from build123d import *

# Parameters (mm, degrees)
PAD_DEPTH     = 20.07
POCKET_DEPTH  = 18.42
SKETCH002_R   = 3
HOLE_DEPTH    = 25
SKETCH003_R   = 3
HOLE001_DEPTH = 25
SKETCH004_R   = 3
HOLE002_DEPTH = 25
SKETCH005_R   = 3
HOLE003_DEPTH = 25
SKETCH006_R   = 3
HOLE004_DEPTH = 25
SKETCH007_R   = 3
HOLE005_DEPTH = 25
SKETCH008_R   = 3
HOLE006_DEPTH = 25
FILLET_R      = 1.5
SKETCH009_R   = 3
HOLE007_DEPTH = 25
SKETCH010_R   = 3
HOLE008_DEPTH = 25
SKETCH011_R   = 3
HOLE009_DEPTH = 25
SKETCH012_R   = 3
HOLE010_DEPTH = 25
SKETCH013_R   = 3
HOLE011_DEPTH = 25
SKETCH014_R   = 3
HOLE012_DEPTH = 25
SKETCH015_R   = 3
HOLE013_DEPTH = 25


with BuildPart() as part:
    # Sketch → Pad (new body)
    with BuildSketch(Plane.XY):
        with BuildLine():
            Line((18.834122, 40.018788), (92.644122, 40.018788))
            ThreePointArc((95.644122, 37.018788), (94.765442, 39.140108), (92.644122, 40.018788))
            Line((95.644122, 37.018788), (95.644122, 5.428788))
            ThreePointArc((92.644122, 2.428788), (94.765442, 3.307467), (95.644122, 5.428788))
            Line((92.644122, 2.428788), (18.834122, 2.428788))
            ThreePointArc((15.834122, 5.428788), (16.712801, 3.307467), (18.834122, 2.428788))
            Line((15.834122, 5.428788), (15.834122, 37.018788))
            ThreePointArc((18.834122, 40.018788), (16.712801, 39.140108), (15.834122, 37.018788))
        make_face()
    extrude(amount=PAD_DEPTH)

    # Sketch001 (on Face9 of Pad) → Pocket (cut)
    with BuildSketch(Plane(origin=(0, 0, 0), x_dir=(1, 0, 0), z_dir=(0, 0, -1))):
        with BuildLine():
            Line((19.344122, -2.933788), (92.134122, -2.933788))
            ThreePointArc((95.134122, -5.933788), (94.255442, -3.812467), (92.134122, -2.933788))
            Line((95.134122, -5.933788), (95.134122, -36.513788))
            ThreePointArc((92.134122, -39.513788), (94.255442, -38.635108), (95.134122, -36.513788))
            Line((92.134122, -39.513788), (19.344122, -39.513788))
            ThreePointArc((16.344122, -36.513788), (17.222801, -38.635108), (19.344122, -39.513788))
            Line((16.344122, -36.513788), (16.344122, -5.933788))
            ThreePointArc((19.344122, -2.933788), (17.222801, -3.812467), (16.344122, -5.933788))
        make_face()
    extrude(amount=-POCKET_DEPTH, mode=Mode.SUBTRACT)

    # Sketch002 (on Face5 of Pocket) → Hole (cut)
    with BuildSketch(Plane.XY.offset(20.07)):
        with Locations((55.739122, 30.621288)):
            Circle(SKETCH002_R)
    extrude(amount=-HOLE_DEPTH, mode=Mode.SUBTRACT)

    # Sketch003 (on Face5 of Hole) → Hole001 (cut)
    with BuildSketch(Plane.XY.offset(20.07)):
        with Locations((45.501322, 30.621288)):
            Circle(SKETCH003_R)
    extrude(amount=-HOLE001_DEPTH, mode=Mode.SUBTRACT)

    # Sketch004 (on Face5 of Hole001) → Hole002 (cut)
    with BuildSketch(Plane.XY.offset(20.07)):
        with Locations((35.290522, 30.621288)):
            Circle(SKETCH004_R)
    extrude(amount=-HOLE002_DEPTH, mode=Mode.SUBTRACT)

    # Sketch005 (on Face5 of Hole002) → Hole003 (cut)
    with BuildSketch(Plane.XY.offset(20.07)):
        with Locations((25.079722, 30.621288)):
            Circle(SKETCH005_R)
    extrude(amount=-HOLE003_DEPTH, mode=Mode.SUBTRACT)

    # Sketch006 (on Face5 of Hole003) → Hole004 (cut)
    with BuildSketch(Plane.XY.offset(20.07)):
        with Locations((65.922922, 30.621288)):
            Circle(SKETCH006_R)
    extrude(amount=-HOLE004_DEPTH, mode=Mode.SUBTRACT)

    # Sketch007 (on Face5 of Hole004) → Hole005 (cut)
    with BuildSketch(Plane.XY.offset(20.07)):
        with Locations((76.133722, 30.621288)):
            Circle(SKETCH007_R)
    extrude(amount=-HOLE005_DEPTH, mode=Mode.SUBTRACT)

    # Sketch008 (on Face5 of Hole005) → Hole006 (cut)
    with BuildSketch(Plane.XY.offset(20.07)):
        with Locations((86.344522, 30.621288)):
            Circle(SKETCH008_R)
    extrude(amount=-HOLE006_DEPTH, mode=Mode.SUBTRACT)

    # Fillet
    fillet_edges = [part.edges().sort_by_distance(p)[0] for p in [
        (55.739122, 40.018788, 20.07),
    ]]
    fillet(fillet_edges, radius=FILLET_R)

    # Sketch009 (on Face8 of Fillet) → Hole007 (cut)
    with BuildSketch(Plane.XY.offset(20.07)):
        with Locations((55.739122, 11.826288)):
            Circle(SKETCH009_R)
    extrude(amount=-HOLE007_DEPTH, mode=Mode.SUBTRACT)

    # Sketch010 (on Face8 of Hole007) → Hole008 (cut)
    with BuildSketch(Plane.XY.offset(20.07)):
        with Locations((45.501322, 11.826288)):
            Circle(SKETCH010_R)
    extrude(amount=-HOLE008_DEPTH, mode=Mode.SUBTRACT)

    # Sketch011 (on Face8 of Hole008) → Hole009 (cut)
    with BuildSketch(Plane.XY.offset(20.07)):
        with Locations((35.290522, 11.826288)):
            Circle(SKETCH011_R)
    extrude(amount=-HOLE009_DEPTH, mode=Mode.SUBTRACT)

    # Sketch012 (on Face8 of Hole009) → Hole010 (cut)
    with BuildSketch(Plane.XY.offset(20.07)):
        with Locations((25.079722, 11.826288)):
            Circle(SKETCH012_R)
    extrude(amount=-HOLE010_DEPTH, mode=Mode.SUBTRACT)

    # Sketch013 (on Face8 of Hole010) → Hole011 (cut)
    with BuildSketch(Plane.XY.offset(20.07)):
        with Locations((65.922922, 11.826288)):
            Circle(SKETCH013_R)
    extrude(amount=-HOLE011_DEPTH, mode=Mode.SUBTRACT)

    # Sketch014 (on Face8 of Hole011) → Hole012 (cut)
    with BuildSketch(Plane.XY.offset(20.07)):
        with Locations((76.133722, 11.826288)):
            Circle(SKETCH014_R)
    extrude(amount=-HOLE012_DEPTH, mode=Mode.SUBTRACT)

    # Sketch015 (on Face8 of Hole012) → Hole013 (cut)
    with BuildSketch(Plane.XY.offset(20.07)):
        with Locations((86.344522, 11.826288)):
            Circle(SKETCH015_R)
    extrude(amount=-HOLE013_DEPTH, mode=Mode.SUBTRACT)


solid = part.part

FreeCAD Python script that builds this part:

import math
import FreeCAD as App
import Part
import Sketcher

V = App.Vector


def edges_at(feature, points):
    """Names of the edges that pass closest to the given points."""
    edges = feature.Shape.Edges
    near = lambda p: min(range(len(edges)), key=lambda i: edges[i].distToShape(Part.Vertex(*p))[0])
    return sorted({f"Edge{near(p) + 1}" for p in points})

doc = App.newDocument("Part")
body = doc.addObject("PartDesign::Body", "Body")

sketch1 = body.newObject("Sketcher::SketchObject", "Sketch")
sketch1.AttachmentSupport = (doc.getObject("XY_Plane"), [""])
sketch1.MapMode = "FlatFace"
sketch1.addGeometry([
    Part.LineSegment(V(92.6, 40, 0), V(18.8, 40, 0)),
    Part.ArcOfCircle(Part.Circle(V(18.8, 37, 0), V(0, 0, 1), 3), math.radians(90), math.radians(180)),
    Part.LineSegment(V(15.8, 37, 0), V(15.8, 5.4, 0)),
    Part.ArcOfCircle(Part.Circle(V(18.8, 5.4, 0), V(0, 0, 1), 3), math.radians(180), math.radians(270)),
    Part.LineSegment(V(18.8, 2.4, 0), V(92.6, 2.4, 0)),
    Part.ArcOfCircle(Part.Circle(V(92.6, 5.4, 0), V(0, 0, 1), 3), math.radians(-90), math.radians(0)),
    Part.LineSegment(V(95.6, 5.4, 0), V(95.6, 37, 0)),
    Part.ArcOfCircle(Part.Circle(V(92.6, 37, 0), V(0, 0, 1), 3), math.radians(0), math.radians(90)),
], False)
sketch1.addConstraint([
    Sketcher.Constraint("Tangent", 0, 2, 1, 1),
    Sketcher.Constraint("Tangent", 1, 2, 2, 1),
    Sketcher.Constraint("Tangent", 2, 2, 3, 1),
    Sketcher.Constraint("Tangent", 3, 2, 4, 1),
    Sketcher.Constraint("Tangent", 4, 2, 5, 1),
    Sketcher.Constraint("Tangent", 5, 2, 6, 1),
    Sketcher.Constraint("Tangent", 6, 2, 7, 1),
    Sketcher.Constraint("Tangent", 7, 2, 0, 1),
    Sketcher.Constraint("Horizontal", 0),
    Sketcher.Constraint("Vertical", 2),
    Sketcher.Constraint("Horizontal", 4),
    Sketcher.Constraint("Vertical", 6),
    Sketcher.Constraint("Equal", 1, 3),
    Sketcher.Constraint("Equal", 3, 5),
    Sketcher.Constraint("Equal", 5, 7),
    Sketcher.Constraint("Radius", 1, 2.999999),
    Sketcher.Constraint("DistanceX", 0, 2, 0, 1, 73.81),
    Sketcher.Constraint("DistanceY", 2, 2, 2, 1, 31.59),
    Sketcher.Constraint("DistanceX", -1, 1, 1, 3, 18.834121),
    Sketcher.Constraint("DistanceY", -1, 1, 1, 3, 37.018789),
])
pad1 = body.newObject("PartDesign::Pad", "Pad")
pad1.Profile = sketch1
pad1.Length = 20.07

sketch2 = body.newObject("Sketcher::SketchObject", "Sketch001")
sketch2.AttachmentSupport = (doc.getObject("XY_Plane"), [""])
sketch2.MapMode = "FlatFace"
sketch2.addGeometry([
    Part.LineSegment(V(92.1, 2.9, 0), V(19.3, 2.9, 0)),
    Part.ArcOfCircle(Part.Circle(V(19.3, 5.9, 0), V(0, 0, 1), 3), math.radians(180), math.radians(270)),
    Part.LineSegment(V(16.3, 5.9, 0), V(16.3, 36.5, 0)),
    Part.ArcOfCircle(Part.Circle(V(19.3, 36.5, 0), V(0, 0, 1), 3), math.radians(90), math.radians(180)),
    Part.LineSegment(V(19.3, 39.5, 0), V(92.1, 39.5, 0)),
    Part.ArcOfCircle(Part.Circle(V(92.1, 36.5, 0), V(0, 0, 1), 3), math.radians(0), math.radians(90)),
    Part.LineSegment(V(95.1, 36.5, 0), V(95.1, 5.9, 0)),
    Part.ArcOfCircle(Part.Circle(V(92.1, 5.9, 0), V(0, 0, 1), 3), math.radians(-90), math.radians(0)),
], False)
sketch2.addConstraint([
    Sketcher.Constraint("Tangent", 0, 2, 1, 2),
    Sketcher.Constraint("Tangent", 1, 1, 2, 1),
    Sketcher.Constraint("Tangent", 2, 2, 3, 2),
    Sketcher.Constraint("Tangent", 3, 1, 4, 1),
    Sketcher.Constraint("Tangent", 4, 2, 5, 2),
    Sketcher.Constraint("Tangent", 5, 1, 6, 1),
    Sketcher.Constraint("Tangent", 6, 2, 7, 2),
    Sketcher.Constraint("Tangent", 7, 1, 0, 1),
    Sketcher.Constraint("Horizontal", 0),
    Sketcher.Constraint("Vertical", 2),
    Sketcher.Constraint("Horizontal", 4),
    Sketcher.Constraint("Vertical", 6),
    Sketcher.Constraint("Equal", 1, 3),
    Sketcher.Constraint("Equal", 3, 5),
    Sketcher.Constraint("Equal", 5, 7),
    Sketcher.Constraint("Radius", 3, 2.999999),
    Sketcher.Constraint("DistanceX", 0, 2, 0, 1, 72.79),
    Sketcher.Constraint("DistanceY", 2, 1, 2, 2, 30.58),
    Sketcher.Constraint("DistanceX", -1, 1, 1, 3, 19.34412),
    Sketcher.Constraint("DistanceY", -1, 1, 3, 3, 36.513789),
])
pocket1 = body.newObject("PartDesign::Pocket", "Pocket")
pocket1.Profile = sketch2
pocket1.Length = 18.42
pocket1.Reversed = True

sketch3 = body.newObject("Sketcher::SketchObject", "Sketch002")
sketch3.AttachmentSupport = (doc.getObject("XY_Plane"), [""])
sketch3.MapMode = "FlatFace"
sketch3.AttachmentOffset = App.Placement(V(0, 0, 20.07), App.Rotation())
sketch3.addGeometry(Part.Circle(V(55.7, 30.6, 0), V(0, 0, 1), 3), False)
sketch3.addConstraint([
    Sketcher.Constraint("Diameter", 0, 6.0),
    Sketcher.Constraint("DistanceY", -1, 1, 0, 3, 30.621288),
    Sketcher.Constraint("DistanceX", -1, 1, 0, 3, 55.739122),
])
pocket2 = body.newObject("PartDesign::Pocket", "Pocket001")
pocket2.Profile = sketch3
pocket2.Length = 25

sketch4 = body.newObject("Sketcher::SketchObject", "Sketch003")
sketch4.AttachmentSupport = (doc.getObject("XY_Plane"), [""])
sketch4.MapMode = "FlatFace"
sketch4.AttachmentOffset = App.Placement(V(0, 0, 20.07), App.Rotation())
sketch4.addGeometry(Part.Circle(V(45.5, 30.6, 0), V(0, 0, 1), 3), False)
sketch4.addConstraint([
    Sketcher.Constraint("Diameter", 0, 6.0),
    Sketcher.Constraint("DistanceY", -1, 1, 0, 3, 30.621288),
    Sketcher.Constraint("DistanceX", -1, 1, 0, 3, 45.501322),
])
pocket3 = body.newObject("PartDesign::Pocket", "Pocket002")
pocket3.Profile = sketch4
pocket3.Length = 25

sketch5 = body.newObject("Sketcher::SketchObject", "Sketch004")
sketch5.AttachmentSupport = (doc.getObject("XY_Plane"), [""])
sketch5.MapMode = "FlatFace"
sketch5.AttachmentOffset = App.Placement(V(0, 0, 20.07), App.Rotation())
sketch5.addGeometry(Part.Circle(V(35.3, 30.6, 0), V(0, 0, 1), 3), False)
sketch5.addConstraint([
    Sketcher.Constraint("Diameter", 0, 6.0),
    Sketcher.Constraint("DistanceY", -1, 1, 0, 3, 30.621288),
    Sketcher.Constraint("DistanceX", -1, 1, 0, 3, 35.290522),
])
pocket4 = body.newObject("PartDesign::Pocket", "Pocket003")
pocket4.Profile = sketch5
pocket4.Length = 25

sketch6 = body.newObject("Sketcher::SketchObject", "Sketch005")
sketch6.AttachmentSupport = (doc.getObject("XY_Plane"), [""])
sketch6.MapMode = "FlatFace"
sketch6.AttachmentOffset = App.Placement(V(0, 0, 20.07), App.Rotation())
sketch6.addGeometry(Part.Circle(V(25.1, 30.6, 0), V(0, 0, 1), 3), False)
sketch6.addConstraint([
    Sketcher.Constraint("Diameter", 0, 6.0),
    Sketcher.Constraint("DistanceY", -1, 1, 0, 3, 30.621288),
    Sketcher.Constraint("DistanceX", -1, 1, 0, 3, 25.079722),
])
pocket5 = body.newObject("PartDesign::Pocket", "Pocket004")
pocket5.Profile = sketch6
pocket5.Length = 25

sketch7 = body.newObject("Sketcher::SketchObject", "Sketch006")
sketch7.AttachmentSupport = (doc.getObject("XY_Plane"), [""])
sketch7.MapMode = "FlatFace"
sketch7.AttachmentOffset = App.Placement(V(0, 0, 20.07), App.Rotation())
sketch7.addGeometry(Part.Circle(V(65.9, 30.6, 0), V(0, 0, 1), 3), False)
sketch7.addConstraint([
    Sketcher.Constraint("Diameter", 0, 6.0),
    Sketcher.Constraint("DistanceX", -1, 1, 0, 3, 65.922922),
    Sketcher.Constraint("DistanceY", -1, 1, 0, 3, 30.621288),
])
pocket6 = body.newObject("PartDesign::Pocket", "Pocket005")
pocket6.Profile = sketch7
pocket6.Length = 25

sketch8 = body.newObject("Sketcher::SketchObject", "Sketch007")
sketch8.AttachmentSupport = (doc.getObject("XY_Plane"), [""])
sketch8.MapMode = "FlatFace"
sketch8.AttachmentOffset = App.Placement(V(0, 0, 20.07), App.Rotation())
sketch8.addGeometry(Part.Circle(V(76.1, 30.6, 0), V(0, 0, 1), 3), False)
sketch8.addConstraint([
    Sketcher.Constraint("Diameter", 0, 6.0),
    Sketcher.Constraint("DistanceY", -1, 1, 0, 3, 30.621288),
    Sketcher.Constraint("DistanceX", -1, 1, 0, 3, 76.133722),
])
pocket7 = body.newObject("PartDesign::Pocket", "Pocket006")
pocket7.Profile = sketch8
pocket7.Length = 25

sketch9 = body.newObject("Sketcher::SketchObject", "Sketch008")
sketch9.AttachmentSupport = (doc.getObject("XY_Plane"), [""])
sketch9.MapMode = "FlatFace"
sketch9.AttachmentOffset = App.Placement(V(0, 0, 20.07), App.Rotation())
sketch9.addGeometry(Part.Circle(V(86.3, 30.6, 0), V(0, 0, 1), 3), False)
sketch9.addConstraint([
    Sketcher.Constraint("Diameter", 0, 6.0),
    Sketcher.Constraint("DistanceX", -1, 1, 0, 3, 86.344522),
    Sketcher.Constraint("DistanceY", -1, 1, 0, 3, 30.621288),
])
pocket8 = body.newObject("PartDesign::Pocket", "Pocket007")
pocket8.Profile = sketch9
pocket8.Length = 25
doc.recompute()

fillet = body.newObject("PartDesign::Fillet", "Fillet")
fillet.Base = (pocket8, edges_at(pocket8, [(55.739, 40.019, 20.07)]))
fillet.Radius = 1.5

sketch10 = body.newObject("Sketcher::SketchObject", "Sketch009")
sketch10.AttachmentSupport = (doc.getObject("XY_Plane"), [""])
sketch10.MapMode = "FlatFace"
sketch10.AttachmentOffset = App.Placement(V(0, 0, 20.07), App.Rotation())
sketch10.addGeometry(Part.Circle(V(55.7, 11.8, 0), V(0, 0, 1), 3), False)
sketch10.addConstraint([
    Sketcher.Constraint("Diameter", 0, 6.0),
    Sketcher.Constraint("DistanceX", -1, 1, 0, 3, 55.739122),
    Sketcher.Constraint("DistanceY", -1, 1, 0, 3, 11.826288),
])
pocket9 = body.newObject("PartDesign::Pocket", "Pocket008")
pocket9.Profile = sketch10
pocket9.Length = 25

sketch11 = body.newObject("Sketcher::SketchObject", "Sketch010")
sketch11.AttachmentSupport = (doc.getObject("XY_Plane"), [""])
sketch11.MapMode = "FlatFace"
sketch11.AttachmentOffset = App.Placement(V(0, 0, 20.07), App.Rotation())
sketch11.addGeometry(Part.Circle(V(45.5, 11.8, 0), V(0, 0, 1), 3), False)
sketch11.addConstraint([
    Sketcher.Constraint("Diameter", 0, 6.0),
    Sketcher.Constraint("DistanceX", -1, 1, 0, 3, 45.501322),
    Sketcher.Constraint("DistanceY", -1, 1, 0, 3, 11.826288),
])
pocket10 = body.newObject("PartDesign::Pocket", "Pocket009")
pocket10.Profile = sketch11
pocket10.Length = 25

sketch12 = body.newObject("Sketcher::SketchObject", "Sketch011")
sketch12.AttachmentSupport = (doc.getObject("XY_Plane"), [""])
sketch12.MapMode = "FlatFace"
sketch12.AttachmentOffset = App.Placement(V(0, 0, 20.07), App.Rotation())
sketch12.addGeometry(Part.Circle(V(35.3, 11.8, 0), V(0, 0, 1), 3), False)
sketch12.addConstraint([
    Sketcher.Constraint("Diameter", 0, 6.0),
    Sketcher.Constraint("DistanceX", -1, 1, 0, 3, 35.290522),
    Sketcher.Constraint("DistanceY", -1, 1, 0, 3, 11.826288),
])
pocket11 = body.newObject("PartDesign::Pocket", "Pocket010")
pocket11.Profile = sketch12
pocket11.Length = 25

sketch13 = body.newObject("Sketcher::SketchObject", "Sketch012")
sketch13.AttachmentSupport = (doc.getObject("XY_Plane"), [""])
sketch13.MapMode = "FlatFace"
sketch13.AttachmentOffset = App.Placement(V(0, 0, 20.07), App.Rotation())
sketch13.addGeometry(Part.Circle(V(25.1, 11.8, 0), V(0, 0, 1), 3), False)
sketch13.addConstraint([
    Sketcher.Constraint("Diameter", 0, 6.0),
    Sketcher.Constraint("DistanceX", -1, 1, 0, 3, 25.079722),
    Sketcher.Constraint("DistanceY", -1, 1, 0, 3, 11.826288),
])
pocket12 = body.newObject("PartDesign::Pocket", "Pocket011")
pocket12.Profile = sketch13
pocket12.Length = 25

sketch14 = body.newObject("Sketcher::SketchObject", "Sketch013")
sketch14.AttachmentSupport = (doc.getObject("XY_Plane"), [""])
sketch14.MapMode = "FlatFace"
sketch14.AttachmentOffset = App.Placement(V(0, 0, 20.07), App.Rotation())
sketch14.addGeometry(Part.Circle(V(65.9, 11.8, 0), V(0, 0, 1), 3), False)
sketch14.addConstraint([
    Sketcher.Constraint("Diameter", 0, 6.0),
    Sketcher.Constraint("DistanceX", -1, 1, 0, 3, 65.922922),
    Sketcher.Constraint("DistanceY", -1, 1, 0, 3, 11.826288),
])
pocket13 = body.newObject("PartDesign::Pocket", "Pocket012")
pocket13.Profile = sketch14
pocket13.Length = 25

sketch15 = body.newObject("Sketcher::SketchObject", "Sketch014")
sketch15.AttachmentSupport = (doc.getObject("XY_Plane"), [""])
sketch15.MapMode = "FlatFace"
sketch15.AttachmentOffset = App.Placement(V(0, 0, 20.07), App.Rotation())
sketch15.addGeometry(Part.Circle(V(76.1, 11.8, 0), V(0, 0, 1), 3), False)
sketch15.addConstraint([
    Sketcher.Constraint("Diameter", 0, 6.0),
    Sketcher.Constraint("DistanceX", -1, 1, 0, 3, 76.133722),
    Sketcher.Constraint("DistanceY", -1, 1, 0, 3, 11.826288),
])
pocket14 = body.newObject("PartDesign::Pocket", "Pocket013")
pocket14.Profile = sketch15
pocket14.Length = 25

sketch16 = body.newObject("Sketcher::SketchObject", "Sketch015")
sketch16.AttachmentSupport = (doc.getObject("XY_Plane"), [""])
sketch16.MapMode = "FlatFace"
sketch16.AttachmentOffset = App.Placement(V(0, 0, 20.07), App.Rotation())
sketch16.addGeometry(Part.Circle(V(86.3, 11.8, 0), V(0, 0, 1), 3), False)
sketch16.addConstraint([
    Sketcher.Constraint("Diameter", 0, 6.0),
    Sketcher.Constraint("DistanceX", -1, 1, 0, 3, 86.344522),
    Sketcher.Constraint("DistanceY", -1, 1, 0, 3, 11.826288),
])
pocket15 = body.newObject("PartDesign::Pocket", "Pocket014")
pocket15.Profile = sketch16
pocket15.Length = 25

doc.recompute()
